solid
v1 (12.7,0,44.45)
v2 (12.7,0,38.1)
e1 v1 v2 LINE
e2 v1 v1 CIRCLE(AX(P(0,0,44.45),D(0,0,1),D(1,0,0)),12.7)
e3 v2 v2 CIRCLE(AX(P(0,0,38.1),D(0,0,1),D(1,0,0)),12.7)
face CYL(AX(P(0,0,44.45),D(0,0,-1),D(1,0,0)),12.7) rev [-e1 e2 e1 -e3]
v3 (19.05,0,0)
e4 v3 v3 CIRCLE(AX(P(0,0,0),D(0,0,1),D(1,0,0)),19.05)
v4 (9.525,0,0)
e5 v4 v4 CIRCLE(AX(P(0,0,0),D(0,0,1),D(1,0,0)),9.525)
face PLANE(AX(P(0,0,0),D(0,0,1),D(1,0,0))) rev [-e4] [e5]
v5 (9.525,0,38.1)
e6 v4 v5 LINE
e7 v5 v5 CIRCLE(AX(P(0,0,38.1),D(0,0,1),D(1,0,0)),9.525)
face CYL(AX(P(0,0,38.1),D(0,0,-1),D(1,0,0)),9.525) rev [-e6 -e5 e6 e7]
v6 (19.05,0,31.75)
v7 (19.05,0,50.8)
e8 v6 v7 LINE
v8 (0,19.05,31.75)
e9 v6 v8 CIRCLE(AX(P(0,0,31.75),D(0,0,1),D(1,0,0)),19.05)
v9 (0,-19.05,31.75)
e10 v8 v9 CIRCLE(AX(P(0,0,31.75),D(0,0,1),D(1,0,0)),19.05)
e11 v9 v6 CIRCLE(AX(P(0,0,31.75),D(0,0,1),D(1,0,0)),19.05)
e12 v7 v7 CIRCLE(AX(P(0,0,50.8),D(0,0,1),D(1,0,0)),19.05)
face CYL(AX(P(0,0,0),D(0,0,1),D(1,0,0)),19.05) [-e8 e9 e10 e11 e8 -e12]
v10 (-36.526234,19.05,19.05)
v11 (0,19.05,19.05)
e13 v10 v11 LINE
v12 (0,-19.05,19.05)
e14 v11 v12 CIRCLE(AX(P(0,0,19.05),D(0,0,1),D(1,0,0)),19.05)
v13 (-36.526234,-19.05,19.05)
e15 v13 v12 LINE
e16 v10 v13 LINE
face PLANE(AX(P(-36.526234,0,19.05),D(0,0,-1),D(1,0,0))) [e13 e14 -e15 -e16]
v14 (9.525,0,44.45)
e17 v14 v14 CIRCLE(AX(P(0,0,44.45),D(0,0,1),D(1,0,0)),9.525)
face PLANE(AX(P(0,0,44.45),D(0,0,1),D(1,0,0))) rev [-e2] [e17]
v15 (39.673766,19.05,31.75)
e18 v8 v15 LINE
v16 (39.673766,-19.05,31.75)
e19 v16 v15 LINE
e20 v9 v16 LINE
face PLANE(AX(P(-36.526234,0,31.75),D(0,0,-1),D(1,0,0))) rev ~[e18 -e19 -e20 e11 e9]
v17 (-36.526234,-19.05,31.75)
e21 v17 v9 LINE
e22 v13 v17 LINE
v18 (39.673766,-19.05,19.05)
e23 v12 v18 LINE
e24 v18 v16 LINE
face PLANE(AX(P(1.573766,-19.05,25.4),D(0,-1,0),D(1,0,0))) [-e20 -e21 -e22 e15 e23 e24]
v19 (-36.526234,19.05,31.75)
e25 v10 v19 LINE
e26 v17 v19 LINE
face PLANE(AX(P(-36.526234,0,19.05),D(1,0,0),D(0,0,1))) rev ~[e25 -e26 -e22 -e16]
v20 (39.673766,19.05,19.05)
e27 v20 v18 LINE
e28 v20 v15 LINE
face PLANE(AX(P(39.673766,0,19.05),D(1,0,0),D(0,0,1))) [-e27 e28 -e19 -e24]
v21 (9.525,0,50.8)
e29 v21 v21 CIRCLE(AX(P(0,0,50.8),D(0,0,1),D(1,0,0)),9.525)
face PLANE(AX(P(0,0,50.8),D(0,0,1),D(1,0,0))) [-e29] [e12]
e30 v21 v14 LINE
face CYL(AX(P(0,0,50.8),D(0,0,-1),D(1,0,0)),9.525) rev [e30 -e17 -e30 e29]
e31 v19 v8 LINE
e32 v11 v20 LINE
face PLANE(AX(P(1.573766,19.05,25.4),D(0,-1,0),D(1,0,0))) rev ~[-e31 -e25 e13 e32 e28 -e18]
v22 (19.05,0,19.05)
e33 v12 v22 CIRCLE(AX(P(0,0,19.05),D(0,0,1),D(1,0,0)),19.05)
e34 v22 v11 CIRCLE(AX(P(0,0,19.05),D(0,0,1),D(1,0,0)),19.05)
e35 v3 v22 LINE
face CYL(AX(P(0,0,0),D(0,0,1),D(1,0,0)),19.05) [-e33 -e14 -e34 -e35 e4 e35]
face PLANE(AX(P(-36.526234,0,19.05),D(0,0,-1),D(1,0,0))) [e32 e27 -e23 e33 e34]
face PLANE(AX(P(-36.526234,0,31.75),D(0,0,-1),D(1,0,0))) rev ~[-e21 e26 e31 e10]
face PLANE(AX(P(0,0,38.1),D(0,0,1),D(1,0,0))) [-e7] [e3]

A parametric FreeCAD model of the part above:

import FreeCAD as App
import Part
import Sketcher
Q = App.Units.Quantity

doc = App.newDocument("Part")
body = doc.addObject("PartDesign::Body", "Body")

sketch1 = doc.addObject("Sketcher::SketchObject", "Sketch")
body.addObject(sketch1)
sketch1.AttachmentSupport = (doc.XZ_Plane, [""])
sketch1.MapMode = "FlatFace"
sketch1.addGeometry(Part.LineSegment(App.Vector(9.5, 38.1, 0), App.Vector(9.5, 0, 0)), False)
sketch1.addGeometry(Part.LineSegment(App.Vector(9.5, 0, 0), App.Vector(19.1, 0, 0)), False)
sketch1.addGeometry(Part.LineSegment(App.Vector(19.1, 0, 0), App.Vector(19.1, 50.8, 0)), False)
sketch1.addGeometry(Part.LineSegment(App.Vector(19.1, 50.8, 0), App.Vector(9.5, 50.8, 0)), False)
sketch1.addGeometry(Part.LineSegment(App.Vector(9.5, 50.8, 0), App.Vector(9.5, 44.5, 0)), False)
sketch1.addGeometry(Part.LineSegment(App.Vector(9.5, 44.5, 0), App.Vector(12.7, 44.5, 0)), False)
sketch1.addGeometry(Part.LineSegment(App.Vector(12.7, 44.5, 0), App.Vector(12.7, 38.1, 0)), False)
sketch1.addGeometry(Part.LineSegment(App.Vector(12.7, 38.1, 0), App.Vector(9.5, 38.1, 0)), False)
sketch1.addConstraint(Sketcher.Constraint("Coincident", 0, 2, 1, 1))
sketch1.addConstraint(Sketcher.Constraint("Coincident", 1, 2, 2, 1))
sketch1.addConstraint(Sketcher.Constraint("Coincident", 2, 2, 3, 1))
sketch1.addConstraint(Sketcher.Constraint("Coincident", 3, 2, 4, 1))
sketch1.addConstraint(Sketcher.Constraint("Coincident", 4, 2, 5, 1))
sketch1.addConstraint(Sketcher.Constraint("Coincident", 5, 2, 6, 1))
sketch1.addConstraint(Sketcher.Constraint("Coincident", 6, 2, 7, 1))
sketch1.addConstraint(Sketcher.Constraint("Coincident", 7, 2, 0, 1))
sketch1.addConstraint(Sketcher.Constraint("Vertical", 0))
sketch1.addConstraint(Sketcher.Constraint("Horizontal", 1))
sketch1.addConstraint(Sketcher.Constraint("Vertical", 2))
sketch1.addConstraint(Sketcher.Constraint("Horizontal", 3))
sketch1.addConstraint(Sketcher.Constraint("Vertical", 4))
sketch1.addConstraint(Sketcher.Constraint("Horizontal", 5))
sketch1.addConstraint(Sketcher.Constraint("Vertical", 6))
sketch1.addConstraint(Sketcher.Constraint("Horizontal", 7))
sketch1.addConstraint(Sketcher.Constraint("PointOnObject", 0, 2, -1))
sketch1.addConstraint(Sketcher.Constraint("Vertical", 0, 2, 3, 2))
sketch1.addConstraint(Sketcher.Constraint("Equal", 4, 6))
sketch1.addConstraint(Sketcher.Constraint("DistanceY", 2, 1, 2, 2, Q("2 in")))
sketch1.addConstraint(Sketcher.Constraint("DistanceY", 0, 2, 0, 1, Q("1.5 in")))
sketch1.addConstraint(Sketcher.Constraint("DistanceX", -1, 1, 5, 2, Q("0.5 in")))
sketch1.addConstraint(Sketcher.Constraint("DistanceX", 1, 1, 1, 2, Q("0.375 in")))
sketch1.addConstraint(Sketcher.Constraint("DistanceX", 5, 1, 5, 2, Q("0.125 in")))
revolution = doc.addObject("PartDesign::Revolution", "Revolution")
body.addObject(revolution)
revolution.Profile = sketch1
revolution.ReferenceAxis = (sketch1, ["V_Axis"])
revolution.Angle = 360

sketch2 = doc.addObject("Sketcher::SketchObject", "Sketch001")
body.addObject(sketch2)
sketch2.AttachmentSupport = (doc.XZ_Plane, [""])
sketch2.MapMode = "FlatFace"
sketch2.addGeometry(Part.LineSegment(App.Vector(-37, 32, 0), App.Vector(-37, 19, 0)), False)
sketch2.addGeometry(Part.LineSegment(App.Vector(-37, 19, 0), App.Vector(40, 19, 0)), False)
sketch2.addGeometry(Part.LineSegment(App.Vector(40, 19, 0), App.Vector(40, 32, 0)), False)
sketch2.addGeometry(Part.LineSegment(App.Vector(40, 32, 0), App.Vector(-37, 32, 0)), False)
sketch2.addConstraint(Sketcher.Constraint("Coincident", 0, 2, 1, 1))
sketch2.addConstraint(Sketcher.Constraint("Coincident", 1, 2, 2, 1))
sketch2.addConstraint(Sketcher.Constraint("Coincident", 2, 2, 3, 1))
sketch2.addConstraint(Sketcher.Constraint("Coincident", 3, 2, 0, 1))
sketch2.addConstraint(Sketcher.Constraint("Vertical", 0))
sketch2.addConstraint(Sketcher.Constraint("Horizontal", 1))
sketch2.addConstraint(Sketcher.Constraint("Vertical", 2))
sketch2.addConstraint(Sketcher.Constraint("Horizontal", 3))
sketch2.addConstraint(Sketcher.Constraint("DistanceX", 1, 1, 1, 2, Q("3 in")))
sketch2.addConstraint(Sketcher.Constraint("DistanceY", 0, 2, 0, 1, Q("0.5 in")))
sketch2.addConstraint(Sketcher.Constraint("DistanceY", -1, 1, 0, 2, Q("0.75 in")))
sketch2.addConstraint(Sketcher.Constraint("DistanceX", 0, 2, -1, 1, 36.526234))
pad1 = doc.addObject("PartDesign::Pad", "Pad")
body.addObject(pad1)
pad1.Profile = sketch2
pad1.Length = Q("1.5 in")
pad1.Midplane = True

sketch3 = doc.addObject("Sketcher::SketchObject", "Sketch002")
body.addObject(sketch3)
sketch3.AttachmentSupport = (doc.XY_Plane, [""])
sketch3.MapMode = "FlatFace"
sketch3.AttachmentOffset = App.Placement(App.Vector(0, 0, 1.25 * 25.4), App.Rotation())
sketch3.addGeometry(Part.Circle(App.Vector(0, 0, 0), App.Vector(0, 0, 1), 10), False)
sketch3.addConstraint(Sketcher.Constraint("Coincident", 0, 3, -1, 1))
sketch3.addConstraint(Sketcher.Constraint("Diameter", 0, Q("0.75 in")))
pocket1 = doc.addObject("PartDesign::Pocket", "Pocket")
body.addObject(pocket1)
pocket1.Profile = sketch3
pocket1.Type = "ThroughAll"

doc.recompute()
